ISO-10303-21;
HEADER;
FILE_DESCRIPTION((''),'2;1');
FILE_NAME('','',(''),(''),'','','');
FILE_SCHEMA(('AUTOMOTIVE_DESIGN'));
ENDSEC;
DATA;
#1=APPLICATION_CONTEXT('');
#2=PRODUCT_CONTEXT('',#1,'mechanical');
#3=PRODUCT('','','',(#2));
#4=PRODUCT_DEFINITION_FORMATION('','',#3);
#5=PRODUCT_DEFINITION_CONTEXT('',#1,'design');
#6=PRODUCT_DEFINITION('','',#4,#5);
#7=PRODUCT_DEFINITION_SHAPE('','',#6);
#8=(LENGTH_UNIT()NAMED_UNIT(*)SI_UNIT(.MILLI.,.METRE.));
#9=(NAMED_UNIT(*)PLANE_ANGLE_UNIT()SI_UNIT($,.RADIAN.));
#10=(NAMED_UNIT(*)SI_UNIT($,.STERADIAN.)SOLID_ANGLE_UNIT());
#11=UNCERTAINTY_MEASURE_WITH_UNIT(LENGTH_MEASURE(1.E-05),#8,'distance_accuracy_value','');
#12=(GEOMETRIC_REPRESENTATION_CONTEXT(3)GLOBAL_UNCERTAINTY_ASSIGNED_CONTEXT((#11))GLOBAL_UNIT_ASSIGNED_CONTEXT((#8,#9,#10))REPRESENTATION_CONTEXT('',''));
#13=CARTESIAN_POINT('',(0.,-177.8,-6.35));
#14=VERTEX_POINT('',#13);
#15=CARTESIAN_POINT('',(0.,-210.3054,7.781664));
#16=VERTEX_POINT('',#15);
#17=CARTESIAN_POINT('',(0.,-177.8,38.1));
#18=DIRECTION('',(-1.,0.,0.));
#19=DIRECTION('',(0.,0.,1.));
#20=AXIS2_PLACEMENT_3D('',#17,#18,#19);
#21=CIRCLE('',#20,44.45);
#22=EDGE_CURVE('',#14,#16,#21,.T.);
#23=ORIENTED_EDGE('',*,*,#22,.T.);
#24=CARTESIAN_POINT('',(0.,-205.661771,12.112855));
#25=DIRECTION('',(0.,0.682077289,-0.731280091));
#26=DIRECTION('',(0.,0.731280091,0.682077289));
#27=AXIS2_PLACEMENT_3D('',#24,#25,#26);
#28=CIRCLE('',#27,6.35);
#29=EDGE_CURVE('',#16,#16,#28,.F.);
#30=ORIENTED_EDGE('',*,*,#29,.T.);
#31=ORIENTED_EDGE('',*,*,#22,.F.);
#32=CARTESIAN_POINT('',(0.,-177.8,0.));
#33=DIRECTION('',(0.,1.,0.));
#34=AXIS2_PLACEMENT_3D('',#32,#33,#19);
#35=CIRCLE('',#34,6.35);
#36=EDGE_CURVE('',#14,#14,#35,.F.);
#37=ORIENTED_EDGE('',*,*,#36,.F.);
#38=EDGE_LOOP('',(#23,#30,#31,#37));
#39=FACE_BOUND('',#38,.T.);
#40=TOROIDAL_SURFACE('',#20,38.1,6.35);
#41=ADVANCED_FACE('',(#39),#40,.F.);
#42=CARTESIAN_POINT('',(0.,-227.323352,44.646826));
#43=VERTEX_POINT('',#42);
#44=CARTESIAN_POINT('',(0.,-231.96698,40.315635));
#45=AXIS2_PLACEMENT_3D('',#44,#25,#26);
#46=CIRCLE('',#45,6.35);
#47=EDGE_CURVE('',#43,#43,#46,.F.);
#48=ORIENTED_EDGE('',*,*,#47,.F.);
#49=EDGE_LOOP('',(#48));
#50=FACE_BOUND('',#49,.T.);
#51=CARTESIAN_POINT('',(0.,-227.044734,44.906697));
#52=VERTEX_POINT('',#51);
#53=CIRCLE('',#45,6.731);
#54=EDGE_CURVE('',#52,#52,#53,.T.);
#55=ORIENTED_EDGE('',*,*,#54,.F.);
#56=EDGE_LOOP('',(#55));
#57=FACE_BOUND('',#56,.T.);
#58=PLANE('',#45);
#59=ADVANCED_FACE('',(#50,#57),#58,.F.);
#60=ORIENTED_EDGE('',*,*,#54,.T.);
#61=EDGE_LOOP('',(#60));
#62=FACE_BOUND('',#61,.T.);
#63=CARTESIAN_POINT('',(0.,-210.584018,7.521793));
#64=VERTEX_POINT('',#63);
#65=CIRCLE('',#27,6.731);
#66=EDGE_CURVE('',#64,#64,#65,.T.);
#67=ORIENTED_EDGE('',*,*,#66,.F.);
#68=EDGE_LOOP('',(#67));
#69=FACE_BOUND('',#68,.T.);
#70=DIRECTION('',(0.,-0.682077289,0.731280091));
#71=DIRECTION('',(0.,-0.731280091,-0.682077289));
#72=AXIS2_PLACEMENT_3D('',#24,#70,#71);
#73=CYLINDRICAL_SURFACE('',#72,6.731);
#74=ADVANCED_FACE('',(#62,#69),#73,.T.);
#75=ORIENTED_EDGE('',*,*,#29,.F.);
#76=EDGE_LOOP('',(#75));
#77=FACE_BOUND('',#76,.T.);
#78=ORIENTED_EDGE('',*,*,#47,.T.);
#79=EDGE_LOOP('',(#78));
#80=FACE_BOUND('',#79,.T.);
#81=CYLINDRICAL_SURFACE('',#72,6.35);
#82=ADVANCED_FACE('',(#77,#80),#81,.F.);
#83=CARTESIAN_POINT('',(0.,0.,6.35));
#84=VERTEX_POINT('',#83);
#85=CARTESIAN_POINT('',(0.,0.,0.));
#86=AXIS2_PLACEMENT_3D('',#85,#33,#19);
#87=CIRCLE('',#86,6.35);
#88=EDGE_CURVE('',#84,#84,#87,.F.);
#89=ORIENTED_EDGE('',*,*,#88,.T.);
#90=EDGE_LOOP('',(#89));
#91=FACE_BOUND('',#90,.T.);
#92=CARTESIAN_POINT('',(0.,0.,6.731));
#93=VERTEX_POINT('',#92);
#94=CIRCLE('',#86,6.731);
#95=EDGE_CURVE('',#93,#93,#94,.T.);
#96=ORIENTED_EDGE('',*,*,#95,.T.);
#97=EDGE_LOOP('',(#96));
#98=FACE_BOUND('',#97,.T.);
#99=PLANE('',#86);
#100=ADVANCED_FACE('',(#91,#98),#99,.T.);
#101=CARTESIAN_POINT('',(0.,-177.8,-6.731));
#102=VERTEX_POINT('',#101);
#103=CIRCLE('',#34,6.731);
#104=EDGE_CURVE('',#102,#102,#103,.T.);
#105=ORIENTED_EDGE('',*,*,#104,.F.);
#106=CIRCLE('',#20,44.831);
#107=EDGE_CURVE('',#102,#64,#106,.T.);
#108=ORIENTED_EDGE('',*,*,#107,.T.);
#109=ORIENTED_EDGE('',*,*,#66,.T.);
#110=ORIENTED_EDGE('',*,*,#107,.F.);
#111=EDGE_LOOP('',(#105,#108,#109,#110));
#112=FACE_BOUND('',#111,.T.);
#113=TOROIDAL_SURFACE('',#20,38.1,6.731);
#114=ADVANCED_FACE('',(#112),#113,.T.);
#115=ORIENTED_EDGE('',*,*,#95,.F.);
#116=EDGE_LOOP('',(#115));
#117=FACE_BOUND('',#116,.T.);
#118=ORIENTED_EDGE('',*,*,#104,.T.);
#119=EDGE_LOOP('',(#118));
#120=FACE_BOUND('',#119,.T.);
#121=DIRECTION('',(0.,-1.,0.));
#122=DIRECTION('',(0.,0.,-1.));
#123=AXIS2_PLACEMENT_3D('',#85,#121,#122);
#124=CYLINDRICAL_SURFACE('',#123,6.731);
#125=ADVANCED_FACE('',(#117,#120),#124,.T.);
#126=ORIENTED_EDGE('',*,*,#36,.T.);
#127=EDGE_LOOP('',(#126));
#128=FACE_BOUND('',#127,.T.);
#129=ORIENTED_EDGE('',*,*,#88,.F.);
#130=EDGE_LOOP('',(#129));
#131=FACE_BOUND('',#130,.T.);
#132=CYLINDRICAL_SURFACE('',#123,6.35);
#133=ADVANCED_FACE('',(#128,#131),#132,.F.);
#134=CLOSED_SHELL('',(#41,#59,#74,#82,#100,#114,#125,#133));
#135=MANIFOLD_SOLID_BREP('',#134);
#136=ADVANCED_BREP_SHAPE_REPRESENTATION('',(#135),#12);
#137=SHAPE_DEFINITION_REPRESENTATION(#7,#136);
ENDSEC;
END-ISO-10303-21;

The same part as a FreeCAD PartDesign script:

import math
import FreeCAD as App
import Part
import Sketcher

V = App.Vector
Q = App.Units.Quantity

doc = App.newDocument("Part")
params = doc.addObject("Spreadsheet::Sheet", "Params")
for row, (alias, value) in enumerate([
    ("sketch1_diameter", "0.5 in"),
    ("sketch1_diameter2", "0.53 in"),
    ("sketch2_radius", "1.5 in"),
    ("sketch2_width", "7 in"),
], start=1):
    params.set(f"A{row}", alias)
    params.set(f"B{row}", "=" + value)
    params.setAlias(f"B{row}", alias)

body = doc.addObject("PartDesign::Body", "Body")

# Sketch on XZ plane
sketch1 = body.newObject("Sketcher::SketchObject", "Sketch")
sketch1.AttachmentSupport = (doc.getObject("XZ_Plane"), [""])
sketch1.MapMode = "FlatFace"
sketch1.addGeometry(Part.Circle(V(0, 0, 0), V(0, 0, 1), 6.731), False)
sketch1.addGeometry(Part.Circle(V(0, 0, 0), V(0, 0, 1), 6.35), False)
sketch1.addConstraint(Sketcher.Constraint("Coincident", 0, 3, -1, 1))
sketch1.addConstraint(Sketcher.Constraint("Coincident", 1, 3, -1, 1))
sketch1.addConstraint(Sketcher.Constraint("Diameter", 1, Q("0.5 in")))
sketch1.addConstraint(Sketcher.Constraint("Diameter", 0, Q("0.53 in")))
sketch1.setExpression("Constraints[2]", "Params.sketch1_diameter")
sketch1.setExpression("Constraints[3]", "Params.sketch1_diameter2")

# Sketch on YZ plane
sketch2 = body.newObject("Sketcher::SketchObject", "Sketch001")
sketch2.AttachmentSupport = (doc.getObject("YZ_Plane"), [""])
sketch2.MapMode = "FlatFace"
sketch2.addGeometry(Part.LineSegment(V(0, 0, 0), V(-177.8, 0, 0)), False)
sketch2.addGeometry(Part.ArcOfCircle(Part.Circle(V(-177.8, 38.1, 0), V(0, 0, 1), 38.1), math.radians(-136.993816), math.radians(-90)), False)
sketch2.addGeometry(Part.LineSegment(V(-205.661771, 12.112855, 0), V(-231.96698, 40.315635, 0)), False)
sketch2.addConstraint(Sketcher.Constraint("Tangent", 0, 2, 1, 2))
sketch2.addConstraint(Sketcher.Constraint("Tangent", 1, 1, 2, 1))
sketch2.addConstraint(Sketcher.Constraint("Horizontal", 0))
sketch2.addConstraint(Sketcher.Constraint("Coincident", 0, 1, -1, 1))
sketch2.addConstraint(Sketcher.Constraint("Radius", 1, Q("1.5 in")))
sketch2.addConstraint(Sketcher.Constraint("DistanceX", 0, 2, 0, 1, Q("7 in")))
sketch2.addConstraint(Sketcher.Constraint("DistanceX", 1, 1, -1, 1, 205.661771))
sketch2.addConstraint(Sketcher.Constraint("DistanceX", 2, 2, -1, 1, 231.96698))
sketch2.setExpression("Constraints[4]", "Params.sketch2_radius")
sketch2.setExpression("Constraints[5]", "Params.sketch2_width")
doc.recompute()

additivepipe = body.newObject("PartDesign::AdditivePipe", "AdditivePipe")
additivepipe.Profile = sketch1
additivepipe.Spine = (sketch2, ["Edge1", "Edge2", "Edge3"])

doc.recompute()
